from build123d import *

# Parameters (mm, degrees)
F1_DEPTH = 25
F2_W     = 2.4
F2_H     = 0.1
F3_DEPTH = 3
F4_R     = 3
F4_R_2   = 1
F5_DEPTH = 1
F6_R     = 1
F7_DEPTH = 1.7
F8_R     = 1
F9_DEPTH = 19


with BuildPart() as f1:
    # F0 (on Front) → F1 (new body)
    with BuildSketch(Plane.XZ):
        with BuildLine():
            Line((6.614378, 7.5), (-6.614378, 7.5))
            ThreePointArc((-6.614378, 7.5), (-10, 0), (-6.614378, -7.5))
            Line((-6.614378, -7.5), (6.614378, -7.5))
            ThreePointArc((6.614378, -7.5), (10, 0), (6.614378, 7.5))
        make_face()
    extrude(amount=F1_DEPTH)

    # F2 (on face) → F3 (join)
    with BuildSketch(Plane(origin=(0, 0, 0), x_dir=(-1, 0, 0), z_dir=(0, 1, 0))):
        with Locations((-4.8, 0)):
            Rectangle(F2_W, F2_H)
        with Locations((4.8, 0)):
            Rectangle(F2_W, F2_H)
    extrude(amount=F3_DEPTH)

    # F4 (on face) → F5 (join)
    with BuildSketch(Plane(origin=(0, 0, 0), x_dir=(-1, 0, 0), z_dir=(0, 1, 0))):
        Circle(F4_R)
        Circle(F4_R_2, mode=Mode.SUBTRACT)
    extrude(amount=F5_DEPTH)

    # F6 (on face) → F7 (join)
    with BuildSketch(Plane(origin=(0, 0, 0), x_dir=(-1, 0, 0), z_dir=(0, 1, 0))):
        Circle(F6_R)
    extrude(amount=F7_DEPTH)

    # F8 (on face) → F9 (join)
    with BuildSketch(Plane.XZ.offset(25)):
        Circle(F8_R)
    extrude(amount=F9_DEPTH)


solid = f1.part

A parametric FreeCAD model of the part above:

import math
import FreeCAD as App
import Part
import Sketcher

V = App.Vector


def add_polygon(sketch, points):
    """Adds a closed chain of lines whose ends are joined by coincident constraints."""
    first, n = sketch.GeometryCount, len(points)
    for a, b in zip(points, points[1:] + points[:1]):
        sketch.addGeometry(Part.LineSegment(App.Vector(*a, 0), App.Vector(*b, 0)), False)
    for i in range(n):
        sketch.addConstraint(Sketcher.Constraint("Coincident", first + i, 2, first + (i + 1) % n, 1))

doc = App.newDocument("Part")
body = doc.addObject("PartDesign::Body", "Body")

# Sketch on XZ plane
sketch1 = body.newObject("Sketcher::SketchObject", "Sketch")
sketch1.AttachmentSupport = (doc.getObject("XZ_Plane"), [""])
sketch1.MapMode = "FlatFace"
sketch1.addGeometry([
    Part.LineSegment(V(7, 8, 0), V(-7, 8, 0)),
    Part.ArcOfCircle(Part.Circle(V(0, 0, 0), V(0, 0, 1), 10), math.radians(131), math.radians(229)),
    Part.LineSegment(V(-7, -8, 0), V(7, -8, 0)),
    Part.ArcOfCircle(Part.Circle(V(0, 0, 0), V(0, 0, 1), 10), math.radians(-49), math.radians(49)),
], False)
sketch1.addConstraint([
    Sketcher.Constraint("Coincident", 0, 2, 1, 1),
    Sketcher.Constraint("Coincident", 1, 2, 2, 1),
    Sketcher.Constraint("Coincident", 2, 2, 3, 1),
    Sketcher.Constraint("Coincident", 3, 2, 0, 1),
    Sketcher.Constraint("Horizontal", 0),
    Sketcher.Constraint("Horizontal", 2),
    Sketcher.Constraint("Coincident", 1, 3, -1, 1),
    Sketcher.Constraint("Coincident", 3, 3, -1, 1),
    Sketcher.Constraint("Equal", 1, 3),
    Sketcher.Constraint("Vertical", 0, 2, 1, 2),
    Sketcher.Constraint("Radius", 1, 9.999999),
    Sketcher.Constraint("DistanceY", 1, 2, 0, 2, 15.0),
])
pad1 = body.newObject("PartDesign::Pad", "Pad")
pad1.Profile = sketch1
pad1.Length = 25

# Sketch on XZ plane
sketch2 = body.newObject("Sketcher::SketchObject", "Sketch001")
sketch2.AttachmentSupport = (doc.getObject("XZ_Plane"), [""])
sketch2.MapMode = "FlatFace"
add_polygon(sketch2, [(6, 0.05), (6, -0.05), (3.6, -0.05), (3.6, 0.05)])  # lines 0-3
add_polygon(sketch2, [(-3.6, 0.05), (-3.6, -0.05), (-6, -0.05), (-6, 0.05)])  # lines 4-7
sketch2.addConstraint([
    Sketcher.Constraint("Vertical", 0),
    Sketcher.Constraint("Horizontal", 1),
    Sketcher.Constraint("Vertical", 2),
    Sketcher.Constraint("Horizontal", 3),
    Sketcher.Constraint("Vertical", 4),
    Sketcher.Constraint("Horizontal", 5),
    Sketcher.Constraint("Vertical", 6),
    Sketcher.Constraint("Horizontal", 7),
    Sketcher.Constraint("Symmetric", 2, 2, 4, 2, -1, 1),
    Sketcher.Constraint("Symmetric", 0, 2, 6, 2, -1, 1),
    Sketcher.Constraint("Horizontal", 1, 2, 4, 2),
    Sketcher.Constraint("DistanceX", 1, 2, 1, 1, 2.4),
    Sketcher.Constraint("DistanceY", 0, 2, 0, 1, 0.1),
    Sketcher.Constraint("DistanceX", -1, 1, 0, 2, 6.0),
])
pad2 = body.newObject("PartDesign::Pad", "Pad001")
pad2.Profile = sketch2
pad2.Length = 3
pad2.Reversed = True

# Sketch on XZ plane
sketch3 = body.newObject("Sketcher::SketchObject", "Sketch002")
sketch3.AttachmentSupport = (doc.getObject("XZ_Plane"), [""])
sketch3.MapMode = "FlatFace"
sketch3.addGeometry([
    Part.Circle(V(0, 0, 0), V(0, 0, 1), 3),
    Part.Circle(V(0, 0, 0), V(0, 0, 1), 1),
], False)
sketch3.addConstraint([
    Sketcher.Constraint("Coincident", 0, 3, -1, 1),
    Sketcher.Constraint("Coincident", 1, 3, -1, 1),
    Sketcher.Constraint("Diameter", 0, 6.0),
    Sketcher.Constraint("Diameter", 1, 2.0),
])
pad3 = body.newObject("PartDesign::Pad", "Pad002")
pad3.Profile = sketch3
pad3.Length = 1
pad3.Reversed = True

# Sketch on XZ plane
sketch4 = body.newObject("Sketcher::SketchObject", "Sketch003")
sketch4.AttachmentSupport = (doc.getObject("XZ_Plane"), [""])
sketch4.MapMode = "FlatFace"
sketch4.addGeometry(Part.Circle(V(0, 0, 0), V(0, 0, 1), 1), False)
sketch4.addConstraint([
    Sketcher.Constraint("Coincident", 0, 3, -1, 1),
    Sketcher.Constraint("Diameter", 0, 2.0),
])
pad4 = body.newObject("PartDesign::Pad", "Pad003")
pad4.Profile = sketch4
pad4.Length = 1.7
pad4.Reversed = True

# Sketch on XZ plane
sketch5 = body.newObject("Sketcher::SketchObject", "Sketch004")
sketch5.AttachmentSupport = (doc.getObject("XZ_Plane"), [""])
sketch5.MapMode = "FlatFace"
sketch5.AttachmentOffset = App.Placement(V(0, 0, 25), App.Rotation())
sketch5.addGeometry(Part.Circle(V(0, 0, 0), V(0, 0, 1), 1), False)
sketch5.addConstraint([
    Sketcher.Constraint("Coincident", 0, 3, -1, 1),
    Sketcher.Constraint("Diameter", 0, 2.0),
])
pad5 = body.newObject("PartDesign::Pad", "Pad004")
pad5.Profile = sketch5
pad5.Length = 19

doc.recompute()
